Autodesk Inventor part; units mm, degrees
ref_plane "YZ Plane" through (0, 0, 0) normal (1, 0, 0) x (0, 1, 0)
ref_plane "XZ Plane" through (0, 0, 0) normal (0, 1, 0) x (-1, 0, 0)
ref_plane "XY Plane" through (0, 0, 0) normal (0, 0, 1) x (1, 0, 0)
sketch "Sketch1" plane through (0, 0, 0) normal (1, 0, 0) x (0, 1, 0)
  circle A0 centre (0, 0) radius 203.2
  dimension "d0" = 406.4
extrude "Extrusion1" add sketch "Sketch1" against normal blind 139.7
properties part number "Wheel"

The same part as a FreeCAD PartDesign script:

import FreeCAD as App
import Part
import Sketcher
from FreeCAD import Vector
Q = App.Units.Quantity

doc = App.newDocument("Part")
body = doc.addObject("PartDesign::Body", "Body")

sketch1 = body.newObject("Sketcher::SketchObject", "Sketch")
sketch1.AttachmentSupport = (doc.getObject("YZ_Plane"), [""])
sketch1.MapMode = "FlatFace"
sketch1.addGeometry(Part.Circle(Vector(0, 0, 0), Vector(0, 0, 1), 203), False)
sketch1.addConstraint([
    Sketcher.Constraint("Coincident", 0, 3, -1, 1),
    Sketcher.Constraint("Diameter", 0, Q("16 in")),
])
pad1 = body.newObject("PartDesign::Pad", "Pad")
pad1.Profile = sketch1
pad1.Length = Q("5.5 in")
pad1.Reversed = True

doc.recompute()
